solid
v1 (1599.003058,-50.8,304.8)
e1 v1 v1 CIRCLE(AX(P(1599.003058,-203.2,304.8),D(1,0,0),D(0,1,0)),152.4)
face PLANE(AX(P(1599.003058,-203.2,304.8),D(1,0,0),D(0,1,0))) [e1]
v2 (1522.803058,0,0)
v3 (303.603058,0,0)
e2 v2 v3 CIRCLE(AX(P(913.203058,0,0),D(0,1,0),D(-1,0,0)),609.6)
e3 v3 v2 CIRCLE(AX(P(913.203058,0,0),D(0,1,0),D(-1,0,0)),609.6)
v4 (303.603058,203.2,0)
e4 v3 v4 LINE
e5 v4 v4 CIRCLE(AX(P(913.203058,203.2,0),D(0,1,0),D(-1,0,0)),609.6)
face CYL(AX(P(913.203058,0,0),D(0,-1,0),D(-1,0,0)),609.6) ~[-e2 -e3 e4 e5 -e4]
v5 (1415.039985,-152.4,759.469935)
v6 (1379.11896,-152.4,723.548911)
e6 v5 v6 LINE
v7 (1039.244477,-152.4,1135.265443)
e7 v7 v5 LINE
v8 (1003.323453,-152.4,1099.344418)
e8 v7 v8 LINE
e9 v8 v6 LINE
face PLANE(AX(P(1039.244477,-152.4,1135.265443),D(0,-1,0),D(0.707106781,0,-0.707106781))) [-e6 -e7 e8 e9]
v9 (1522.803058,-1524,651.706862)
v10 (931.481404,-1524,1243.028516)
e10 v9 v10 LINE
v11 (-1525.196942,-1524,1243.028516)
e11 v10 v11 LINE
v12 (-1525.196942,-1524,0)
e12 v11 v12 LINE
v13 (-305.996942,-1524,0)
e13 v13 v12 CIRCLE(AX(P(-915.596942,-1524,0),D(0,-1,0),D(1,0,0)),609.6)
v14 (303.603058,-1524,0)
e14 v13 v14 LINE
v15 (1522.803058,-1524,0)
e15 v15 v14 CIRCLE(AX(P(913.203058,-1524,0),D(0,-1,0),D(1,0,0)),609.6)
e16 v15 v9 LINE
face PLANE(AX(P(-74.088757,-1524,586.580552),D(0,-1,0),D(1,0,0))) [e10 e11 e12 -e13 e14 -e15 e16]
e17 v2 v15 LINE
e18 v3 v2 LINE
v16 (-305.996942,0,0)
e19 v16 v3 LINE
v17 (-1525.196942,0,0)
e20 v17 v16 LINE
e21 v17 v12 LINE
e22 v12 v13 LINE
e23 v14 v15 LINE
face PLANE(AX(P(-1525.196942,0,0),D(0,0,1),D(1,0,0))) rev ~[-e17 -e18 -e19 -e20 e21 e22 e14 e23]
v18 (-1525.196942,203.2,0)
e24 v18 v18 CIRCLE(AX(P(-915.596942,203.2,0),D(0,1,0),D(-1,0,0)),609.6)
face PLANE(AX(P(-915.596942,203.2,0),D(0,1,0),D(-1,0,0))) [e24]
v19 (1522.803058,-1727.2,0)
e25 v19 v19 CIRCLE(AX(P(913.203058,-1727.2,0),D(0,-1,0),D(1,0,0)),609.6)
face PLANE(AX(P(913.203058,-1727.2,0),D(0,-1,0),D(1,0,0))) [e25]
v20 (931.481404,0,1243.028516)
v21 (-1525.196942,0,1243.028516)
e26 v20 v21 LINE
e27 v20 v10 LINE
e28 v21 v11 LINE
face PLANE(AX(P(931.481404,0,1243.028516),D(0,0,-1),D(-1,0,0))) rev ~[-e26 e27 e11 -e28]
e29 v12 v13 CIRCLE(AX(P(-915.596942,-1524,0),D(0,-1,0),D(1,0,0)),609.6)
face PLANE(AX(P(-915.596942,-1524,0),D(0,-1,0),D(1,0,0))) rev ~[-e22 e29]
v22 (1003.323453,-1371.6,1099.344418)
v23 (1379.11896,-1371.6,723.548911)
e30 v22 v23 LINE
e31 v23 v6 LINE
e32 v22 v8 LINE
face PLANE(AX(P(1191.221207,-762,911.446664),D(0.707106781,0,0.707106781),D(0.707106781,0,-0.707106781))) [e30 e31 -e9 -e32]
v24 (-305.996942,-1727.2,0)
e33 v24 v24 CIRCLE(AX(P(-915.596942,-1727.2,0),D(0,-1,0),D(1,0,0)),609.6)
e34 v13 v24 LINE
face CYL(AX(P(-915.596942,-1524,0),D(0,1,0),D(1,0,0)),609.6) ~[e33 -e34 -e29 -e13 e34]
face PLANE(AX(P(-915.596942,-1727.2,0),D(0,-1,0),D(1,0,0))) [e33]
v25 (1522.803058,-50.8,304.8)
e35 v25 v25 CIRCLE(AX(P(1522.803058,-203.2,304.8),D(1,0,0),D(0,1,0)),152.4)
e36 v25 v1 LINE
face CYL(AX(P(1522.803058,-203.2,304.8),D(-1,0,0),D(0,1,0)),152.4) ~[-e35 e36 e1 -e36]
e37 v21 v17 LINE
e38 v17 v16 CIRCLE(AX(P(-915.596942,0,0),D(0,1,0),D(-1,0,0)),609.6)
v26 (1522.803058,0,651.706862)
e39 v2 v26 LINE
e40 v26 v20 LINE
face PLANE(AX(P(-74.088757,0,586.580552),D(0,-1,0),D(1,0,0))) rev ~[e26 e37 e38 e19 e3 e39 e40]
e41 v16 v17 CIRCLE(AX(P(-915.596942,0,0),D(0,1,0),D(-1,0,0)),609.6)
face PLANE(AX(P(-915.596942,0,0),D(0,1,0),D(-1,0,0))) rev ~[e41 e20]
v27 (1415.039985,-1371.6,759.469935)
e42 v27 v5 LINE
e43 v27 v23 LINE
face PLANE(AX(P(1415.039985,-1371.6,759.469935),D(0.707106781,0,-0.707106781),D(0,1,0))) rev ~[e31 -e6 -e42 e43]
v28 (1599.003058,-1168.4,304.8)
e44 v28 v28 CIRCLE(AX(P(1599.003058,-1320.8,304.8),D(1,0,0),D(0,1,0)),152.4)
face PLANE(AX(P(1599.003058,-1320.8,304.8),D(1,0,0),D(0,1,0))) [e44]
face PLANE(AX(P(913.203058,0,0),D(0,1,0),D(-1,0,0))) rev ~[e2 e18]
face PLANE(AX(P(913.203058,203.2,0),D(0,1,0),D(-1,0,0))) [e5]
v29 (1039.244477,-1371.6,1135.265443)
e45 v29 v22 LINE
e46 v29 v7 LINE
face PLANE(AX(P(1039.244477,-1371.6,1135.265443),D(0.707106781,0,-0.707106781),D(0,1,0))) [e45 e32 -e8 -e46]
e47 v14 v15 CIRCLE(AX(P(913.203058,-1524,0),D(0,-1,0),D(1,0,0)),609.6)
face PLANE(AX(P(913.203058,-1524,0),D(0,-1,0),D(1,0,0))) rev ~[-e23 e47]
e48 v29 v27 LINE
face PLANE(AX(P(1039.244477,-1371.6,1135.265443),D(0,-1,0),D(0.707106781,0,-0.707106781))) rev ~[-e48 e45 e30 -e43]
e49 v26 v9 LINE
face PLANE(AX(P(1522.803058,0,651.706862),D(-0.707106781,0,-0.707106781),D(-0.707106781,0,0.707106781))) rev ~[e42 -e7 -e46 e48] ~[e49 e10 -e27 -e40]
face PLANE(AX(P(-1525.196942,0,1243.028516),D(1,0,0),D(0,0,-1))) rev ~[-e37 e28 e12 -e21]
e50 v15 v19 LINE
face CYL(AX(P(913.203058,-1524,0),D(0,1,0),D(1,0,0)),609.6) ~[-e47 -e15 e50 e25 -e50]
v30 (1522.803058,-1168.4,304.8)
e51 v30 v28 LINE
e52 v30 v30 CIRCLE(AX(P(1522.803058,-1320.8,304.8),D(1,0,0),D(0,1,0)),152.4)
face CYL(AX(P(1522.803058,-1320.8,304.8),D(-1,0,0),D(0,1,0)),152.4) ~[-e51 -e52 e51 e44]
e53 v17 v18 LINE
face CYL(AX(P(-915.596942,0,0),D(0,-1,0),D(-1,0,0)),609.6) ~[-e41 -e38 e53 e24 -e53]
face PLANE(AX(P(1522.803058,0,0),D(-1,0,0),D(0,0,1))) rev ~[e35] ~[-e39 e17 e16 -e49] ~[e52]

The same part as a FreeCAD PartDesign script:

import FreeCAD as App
import Part
import Sketcher
from FreeCAD import Vector
Q = App.Units.Quantity

doc = App.newDocument("Part")
body = doc.addObject("PartDesign::Body", "Body")

sketch1 = body.newObject("Sketcher::SketchObject", "Sketch")
sketch1.AttachmentSupport = (doc.getObject("XZ_Plane"), [""])
sketch1.MapMode = "FlatFace"
sketch1.addGeometry([
    Part.LineSegment(Vector(-1525, 0, 0), Vector(1523, 0, 0)),
    Part.LineSegment(Vector(1523, 0, 0), Vector(1523, 652, 0)),
    Part.LineSegment(Vector(1523, 652, 0), Vector(931, 1243, 0)),
    Part.LineSegment(Vector(931, 1243, 0), Vector(-1525, 1243, 0)),
    Part.LineSegment(Vector(-1525, 1243, 0), Vector(-1525, 0, 0)),
], False)
sketch1.addConstraint([
    Sketcher.Constraint("Coincident", 0, 2, 1, 1),
    Sketcher.Constraint("Coincident", 1, 2, 2, 1),
    Sketcher.Constraint("Coincident", 2, 2, 3, 1),
    Sketcher.Constraint("Coincident", 3, 2, 4, 1),
    Sketcher.Constraint("Coincident", 4, 2, 0, 1),
    Sketcher.Constraint("Horizontal", 0),
    Sketcher.Constraint("Vertical", 1),
    Sketcher.Constraint("Horizontal", 3),
    Sketcher.Constraint("Vertical", 4),
    Sketcher.Constraint("PointOnObject", 0, 2, -1),
    Sketcher.Constraint("DistanceX", 0, 1, 0, 2, Q("120 in")),
    Sketcher.Constraint("Angle", 2, Q("135 deg")),
    Sketcher.Constraint("DistanceY", 1, 1, 1, 2, 651.706862),
    Sketcher.Constraint("DistanceX", 3, 2, 3, 1, 2456.678346),
    Sketcher.Constraint("DistanceX", -1, 1, 0, 2, 1522.803058),
])
pad1 = body.newObject("PartDesign::Pad", "Pad")
pad1.Profile = sketch1
pad1.Length = Q("60 in")

sketch2 = body.newObject("Sketcher::SketchObject", "Sketch001")
sketch2.AttachmentSupport = (doc.getObject("YZ_Plane"), [""])
sketch2.MapMode = "FlatFace"
sketch2.AttachmentOffset = App.Placement(Vector(0, 0, 1522.803058), App.Rotation())
sketch2.addGeometry([
    Part.Circle(Vector(-203, 305, 0), Vector(0, 0, 1), 152),
    Part.Circle(Vector(-1321, 305, 0), Vector(0, 0, 1), 152),
], False)
sketch2.addConstraint([
    Sketcher.Constraint("Equal", 0, 1),
    Sketcher.Constraint("Horizontal", 0, 3, 1, 3),
    Sketcher.Constraint("Diameter", 0, Q("12 in")),
    Sketcher.Constraint("DistanceX", 0, 3, -1, 1, Q("8 in")),
    Sketcher.Constraint("DistanceY", -1, 1, 0, 3, Q("12 in")),
    Sketcher.Constraint("DistanceX", 1, 3, -1, 1, Q("52 in")),
])
pad2 = body.newObject("PartDesign::Pad", "Pad001")
pad2.Profile = sketch2
pad2.Length = Q("3 in")

sketch3 = body.newObject("Sketcher::SketchObject", "Sketch002")
sketch3.Placement = App.Placement(Vector(1087.25496, 0, 1087.25496), App.Rotation(Vector(0.707106781, 0, -0.707106781), Vector(0, 0.999999999, 0), Vector(0.707106781, 0, 0.707106781), "ZXY"))
sketch3.addGeometry([
    Part.LineSegment(Vector(-68, -152, 0), Vector(-68, -1372, 0)),
    Part.LineSegment(Vector(-68, -1372, 0), Vector(464, -1372, 0)),
    Part.LineSegment(Vector(464, -1372, 0), Vector(464, -152, 0)),
    Part.LineSegment(Vector(464, -152, 0), Vector(-68, -152, 0)),
], False)
sketch3.addConstraint([
    Sketcher.Constraint("Coincident", 0, 2, 1, 1),
    Sketcher.Constraint("Coincident", 1, 2, 2, 1),
    Sketcher.Constraint("Coincident", 2, 2, 3, 1),
    Sketcher.Constraint("Coincident", 3, 2, 0, 1),
    Sketcher.Constraint("Vertical", 0),
    Sketcher.Constraint("Horizontal", 1),
    Sketcher.Constraint("Vertical", 2),
    Sketcher.Constraint("Horizontal", 3),
    Sketcher.Constraint("DistanceY", 0, 2, 0, 1, Q("47.9999999 in")),
    Sketcher.Constraint("DistanceY", 0, 2, -1, 1, Q("53.9999999 in")),
    Sketcher.Constraint("DistanceX", 1, 1, 1, 2, 531.455103),
    Sketcher.Constraint("DistanceX", 0, 2, -1, 1, 67.897075),
])
pocket1 = body.newObject("PartDesign::Pocket", "Pocket")
pocket1.Profile = sketch3
pocket1.Length = Q("2 in")

sketch4 = body.newObject("Sketcher::SketchObject", "Sketch003")
sketch4.AttachmentSupport = (doc.getObject("XZ_Plane"), [""])
sketch4.MapMode = "FlatFace"
sketch4.addGeometry([
    Part.Circle(Vector(913, 0, 0), Vector(0, 0, 1), 610),
    Part.Circle(Vector(-916, 0, 0), Vector(0, 0, 1), 610),
], False)
sketch4.addConstraint([
    Sketcher.Constraint("Equal", 0, 1),
    Sketcher.Constraint("PointOnObject", 0, 3, -1),
    Sketcher.Constraint("PointOnObject", 1, 3, -1),
    Sketcher.Constraint("Diameter", 0, Q("48 in")),
    Sketcher.Constraint("DistanceX", 1, 3, 0, 3, Q("72 in")),
    Sketcher.Constraint("DistanceX", -1, 1, 0, 3, 913.203058),
])
pad3 = body.newObject("PartDesign::Pad", "Pad002")
pad3.Profile = sketch4
pad3.Length = Q("8 in")
pad3.Reversed = True

sketch5 = body.newObject("Sketcher::SketchObject", "Sketch004")
sketch5.AttachmentSupport = (doc.getObject("XZ_Plane"), [""])
sketch5.MapMode = "FlatFace"
sketch5.AttachmentOffset = App.Placement(Vector(0, 0, 60 * 25.4), App.Rotation())
sketch5.addGeometry([
    Part.Circle(Vector(-916, 0, 0), Vector(0, 0, 1), 610),
    Part.Circle(Vector(913, 0, 0), Vector(0, 0, 1), 610),
], False)
sketch5.addConstraint([
    Sketcher.Constraint("Equal", 0, 1),
    Sketcher.Constraint("PointOnObject", 0, 3, -1),
    Sketcher.Constraint("PointOnObject", 1, 3, -1),
    Sketcher.Constraint("Diameter", 0, Q("48 in")),
    Sketcher.Constraint("DistanceX", 0, 3, 1, 3, Q("72 in")),
    Sketcher.Constraint("DistanceX", 0, 3, -1, 1, 915.596942),
])
pad4 = body.newObject("PartDesign::Pad", "Pad003")
pad4.Profile = sketch5
pad4.Length = Q("8 in")

doc.recompute()
